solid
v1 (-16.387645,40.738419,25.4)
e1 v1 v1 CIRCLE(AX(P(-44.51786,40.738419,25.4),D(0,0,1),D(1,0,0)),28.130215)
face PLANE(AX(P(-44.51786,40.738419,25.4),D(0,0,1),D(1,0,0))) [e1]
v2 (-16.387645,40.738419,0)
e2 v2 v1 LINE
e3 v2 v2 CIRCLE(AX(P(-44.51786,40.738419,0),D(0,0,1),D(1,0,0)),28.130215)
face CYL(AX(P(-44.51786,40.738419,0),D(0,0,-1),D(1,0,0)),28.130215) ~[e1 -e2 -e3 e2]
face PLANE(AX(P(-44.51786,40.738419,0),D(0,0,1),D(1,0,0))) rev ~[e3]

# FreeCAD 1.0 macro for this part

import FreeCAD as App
import Part
import Sketcher
from FreeCAD import Vector
Q = App.Units.Quantity

doc = App.newDocument("Part")
body = doc.addObject("PartDesign::Body", "Body")

# Sketch on XY plane
sketch1 = body.newObject("Sketcher::SketchObject", "Sketch")
sketch1.AttachmentSupport = (doc.getObject("XY_Plane"), [""])
sketch1.MapMode = "FlatFace"
sketch1.addGeometry(Part.Circle(Vector(-45, 41, 0), Vector(0, 0, 1), 28), False)
sketch1.addConstraint([
    Sketcher.Constraint("Diameter", 0, Q("56.260429 mm")),
    Sketcher.Constraint("DistanceX", 0, 3, -1, 1, Q("44.51786 mm")),
    Sketcher.Constraint("DistanceY", -1, 1, 0, 3, Q("40.738419 mm")),
])
pad1 = body.newObject("PartDesign::Pad", "Pad")
pad1.Profile = sketch1
pad1.Length = Q("1 in")

doc.recompute()
